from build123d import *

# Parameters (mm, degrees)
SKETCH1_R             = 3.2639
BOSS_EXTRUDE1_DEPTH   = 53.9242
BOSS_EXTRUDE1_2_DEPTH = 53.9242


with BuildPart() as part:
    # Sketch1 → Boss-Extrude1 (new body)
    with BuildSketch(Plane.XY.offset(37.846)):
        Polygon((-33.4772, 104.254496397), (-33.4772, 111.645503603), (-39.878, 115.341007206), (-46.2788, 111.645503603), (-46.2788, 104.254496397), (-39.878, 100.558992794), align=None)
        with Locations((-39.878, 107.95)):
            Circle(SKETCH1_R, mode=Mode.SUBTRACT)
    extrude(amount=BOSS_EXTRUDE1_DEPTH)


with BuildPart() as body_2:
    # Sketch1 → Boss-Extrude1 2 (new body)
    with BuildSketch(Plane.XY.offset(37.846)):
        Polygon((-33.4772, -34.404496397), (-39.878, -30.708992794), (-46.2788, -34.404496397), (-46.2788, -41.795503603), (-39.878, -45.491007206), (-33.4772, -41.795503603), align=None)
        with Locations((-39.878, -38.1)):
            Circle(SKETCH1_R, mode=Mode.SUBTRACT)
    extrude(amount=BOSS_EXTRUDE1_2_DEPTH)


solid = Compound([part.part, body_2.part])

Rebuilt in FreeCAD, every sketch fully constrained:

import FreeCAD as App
import Part
import Sketcher
Q = App.Units.Quantity


def add_polygon(sketch, points):
    """Adds a closed chain of lines whose ends are joined by coincident constraints."""
    first, n = sketch.GeometryCount, len(points)
    for a, b in zip(points, points[1:] + points[:1]):
        sketch.addGeometry(Part.LineSegment(App.Vector(*a, 0), App.Vector(*b, 0)), False)
    for i in range(n):
        sketch.addConstraint(Sketcher.Constraint("Coincident", first + i, 2, first + (i + 1) % n, 1))

doc = App.newDocument("Part")
body = doc.addObject("PartDesign::Body", "Body")

sketch1 = body.newObject("Sketcher::SketchObject", "Sketch")
sketch1.AttachmentSupport = (doc.getObject("XY_Plane"), [""])
sketch1.MapMode = "FlatFace"
sketch1.AttachmentOffset = App.Placement(App.Vector(0, 0, 1.49 * 25.4), App.Rotation())
add_polygon(sketch1, [(-33.5, 104.3), (-33.5, 111.6), (-39.9, 115.3), (-46.3, 111.6), (-46.3, 104.3), (-39.9, 100.6)])
sketch1.addGeometry(Part.Circle(App.Vector(-39.9, 108, 0), App.Vector(0, 0, 1), 3.3), False)
sketch1.addConstraint([
    Sketcher.Constraint("Vertical", 0),
    Sketcher.Constraint("Vertical", 3),
    Sketcher.Constraint("Parallel", 1, 4),
    Sketcher.Constraint("Parallel", 2, 5),
    Sketcher.Constraint("Horizontal", 0, 2, 2, 2),
    Sketcher.Constraint("Horizontal", 3, 2, 5, 2),
    Sketcher.Constraint("Vertical", 6, 3, 1, 2),
    Sketcher.Constraint("Vertical", 1, 2, 4, 2),
    Sketcher.Constraint("Diameter", 6, Q("0.257 in")),
    Sketcher.Constraint("Angle", 1, Q("150 deg")),
    Sketcher.Constraint("DistanceX", 6, 3, -1, 1, Q("1.57 in")),
    Sketcher.Constraint("DistanceY", -1, 1, 6, 3, Q("4.25 in")),
    Sketcher.Constraint("DistanceX", 0, 2, -1, 1, Q("1.318 in")),
    Sketcher.Constraint("DistanceY", 0, 1, 0, 2, 7.391007),
    Sketcher.Constraint("DistanceY", -1, 1, 0, 2, 111.645504),
])
pad1 = body.newObject("PartDesign::Pad", "Pad")
pad1.Profile = sketch1
pad1.Length = Q("2.123 in")
body2 = doc.addObject("PartDesign::Body", "Body001")

sketch2 = body2.newObject("Sketcher::SketchObject", "Sketch001")
sketch2.AttachmentSupport = (doc.getObject("XY_Plane001"), [""])
sketch2.MapMode = "FlatFace"
sketch2.AttachmentOffset = App.Placement(App.Vector(0, 0, 1.49 * 25.4), App.Rotation())
add_polygon(sketch2, [(-33.5, -34.4), (-39.9, -30.7), (-46.3, -34.4), (-46.3, -41.8), (-39.9, -45.5), (-33.5, -41.8)])
sketch2.addGeometry(Part.Circle(App.Vector(-39.9, -38.1, 0), App.Vector(0, 0, 1), 3.3), False)
sketch2.addConstraint([
    Sketcher.Constraint("Vertical", 2),
    Sketcher.Constraint("Vertical", 5),
    Sketcher.Constraint("Parallel", 0, 3),
    Sketcher.Constraint("Parallel", 1, 4),
    Sketcher.Constraint("Horizontal", 2, 2, 4, 2),
    Sketcher.Constraint("Horizontal", 1, 2, 5, 2),
    Sketcher.Constraint("Vertical", 6, 3, 0, 2),
    Sketcher.Constraint("Vertical", 0, 2, 3, 2),
    Sketcher.Constraint("Diameter", 6, Q("0.257 in")),
    Sketcher.Constraint("Angle", 0, Q("150 deg")),
    Sketcher.Constraint("DistanceY", 6, 3, -1, 1, Q("1.5 in")),
    Sketcher.Constraint("DistanceX", 6, 3, -1, 1, Q("1.57 in")),
    Sketcher.Constraint("DistanceX", 1, 2, -1, 1, Q("1.822 in")),
    Sketcher.Constraint("DistanceY", 2, 2, 2, 1, 7.391007),
    Sketcher.Constraint("DistanceY", 0, 2, -1, 1, 30.708993),
])
pad2 = body2.newObject("PartDesign::Pad", "Pad001")
pad2.Profile = sketch2
pad2.Length = Q("2.123 in")

doc.recompute()
